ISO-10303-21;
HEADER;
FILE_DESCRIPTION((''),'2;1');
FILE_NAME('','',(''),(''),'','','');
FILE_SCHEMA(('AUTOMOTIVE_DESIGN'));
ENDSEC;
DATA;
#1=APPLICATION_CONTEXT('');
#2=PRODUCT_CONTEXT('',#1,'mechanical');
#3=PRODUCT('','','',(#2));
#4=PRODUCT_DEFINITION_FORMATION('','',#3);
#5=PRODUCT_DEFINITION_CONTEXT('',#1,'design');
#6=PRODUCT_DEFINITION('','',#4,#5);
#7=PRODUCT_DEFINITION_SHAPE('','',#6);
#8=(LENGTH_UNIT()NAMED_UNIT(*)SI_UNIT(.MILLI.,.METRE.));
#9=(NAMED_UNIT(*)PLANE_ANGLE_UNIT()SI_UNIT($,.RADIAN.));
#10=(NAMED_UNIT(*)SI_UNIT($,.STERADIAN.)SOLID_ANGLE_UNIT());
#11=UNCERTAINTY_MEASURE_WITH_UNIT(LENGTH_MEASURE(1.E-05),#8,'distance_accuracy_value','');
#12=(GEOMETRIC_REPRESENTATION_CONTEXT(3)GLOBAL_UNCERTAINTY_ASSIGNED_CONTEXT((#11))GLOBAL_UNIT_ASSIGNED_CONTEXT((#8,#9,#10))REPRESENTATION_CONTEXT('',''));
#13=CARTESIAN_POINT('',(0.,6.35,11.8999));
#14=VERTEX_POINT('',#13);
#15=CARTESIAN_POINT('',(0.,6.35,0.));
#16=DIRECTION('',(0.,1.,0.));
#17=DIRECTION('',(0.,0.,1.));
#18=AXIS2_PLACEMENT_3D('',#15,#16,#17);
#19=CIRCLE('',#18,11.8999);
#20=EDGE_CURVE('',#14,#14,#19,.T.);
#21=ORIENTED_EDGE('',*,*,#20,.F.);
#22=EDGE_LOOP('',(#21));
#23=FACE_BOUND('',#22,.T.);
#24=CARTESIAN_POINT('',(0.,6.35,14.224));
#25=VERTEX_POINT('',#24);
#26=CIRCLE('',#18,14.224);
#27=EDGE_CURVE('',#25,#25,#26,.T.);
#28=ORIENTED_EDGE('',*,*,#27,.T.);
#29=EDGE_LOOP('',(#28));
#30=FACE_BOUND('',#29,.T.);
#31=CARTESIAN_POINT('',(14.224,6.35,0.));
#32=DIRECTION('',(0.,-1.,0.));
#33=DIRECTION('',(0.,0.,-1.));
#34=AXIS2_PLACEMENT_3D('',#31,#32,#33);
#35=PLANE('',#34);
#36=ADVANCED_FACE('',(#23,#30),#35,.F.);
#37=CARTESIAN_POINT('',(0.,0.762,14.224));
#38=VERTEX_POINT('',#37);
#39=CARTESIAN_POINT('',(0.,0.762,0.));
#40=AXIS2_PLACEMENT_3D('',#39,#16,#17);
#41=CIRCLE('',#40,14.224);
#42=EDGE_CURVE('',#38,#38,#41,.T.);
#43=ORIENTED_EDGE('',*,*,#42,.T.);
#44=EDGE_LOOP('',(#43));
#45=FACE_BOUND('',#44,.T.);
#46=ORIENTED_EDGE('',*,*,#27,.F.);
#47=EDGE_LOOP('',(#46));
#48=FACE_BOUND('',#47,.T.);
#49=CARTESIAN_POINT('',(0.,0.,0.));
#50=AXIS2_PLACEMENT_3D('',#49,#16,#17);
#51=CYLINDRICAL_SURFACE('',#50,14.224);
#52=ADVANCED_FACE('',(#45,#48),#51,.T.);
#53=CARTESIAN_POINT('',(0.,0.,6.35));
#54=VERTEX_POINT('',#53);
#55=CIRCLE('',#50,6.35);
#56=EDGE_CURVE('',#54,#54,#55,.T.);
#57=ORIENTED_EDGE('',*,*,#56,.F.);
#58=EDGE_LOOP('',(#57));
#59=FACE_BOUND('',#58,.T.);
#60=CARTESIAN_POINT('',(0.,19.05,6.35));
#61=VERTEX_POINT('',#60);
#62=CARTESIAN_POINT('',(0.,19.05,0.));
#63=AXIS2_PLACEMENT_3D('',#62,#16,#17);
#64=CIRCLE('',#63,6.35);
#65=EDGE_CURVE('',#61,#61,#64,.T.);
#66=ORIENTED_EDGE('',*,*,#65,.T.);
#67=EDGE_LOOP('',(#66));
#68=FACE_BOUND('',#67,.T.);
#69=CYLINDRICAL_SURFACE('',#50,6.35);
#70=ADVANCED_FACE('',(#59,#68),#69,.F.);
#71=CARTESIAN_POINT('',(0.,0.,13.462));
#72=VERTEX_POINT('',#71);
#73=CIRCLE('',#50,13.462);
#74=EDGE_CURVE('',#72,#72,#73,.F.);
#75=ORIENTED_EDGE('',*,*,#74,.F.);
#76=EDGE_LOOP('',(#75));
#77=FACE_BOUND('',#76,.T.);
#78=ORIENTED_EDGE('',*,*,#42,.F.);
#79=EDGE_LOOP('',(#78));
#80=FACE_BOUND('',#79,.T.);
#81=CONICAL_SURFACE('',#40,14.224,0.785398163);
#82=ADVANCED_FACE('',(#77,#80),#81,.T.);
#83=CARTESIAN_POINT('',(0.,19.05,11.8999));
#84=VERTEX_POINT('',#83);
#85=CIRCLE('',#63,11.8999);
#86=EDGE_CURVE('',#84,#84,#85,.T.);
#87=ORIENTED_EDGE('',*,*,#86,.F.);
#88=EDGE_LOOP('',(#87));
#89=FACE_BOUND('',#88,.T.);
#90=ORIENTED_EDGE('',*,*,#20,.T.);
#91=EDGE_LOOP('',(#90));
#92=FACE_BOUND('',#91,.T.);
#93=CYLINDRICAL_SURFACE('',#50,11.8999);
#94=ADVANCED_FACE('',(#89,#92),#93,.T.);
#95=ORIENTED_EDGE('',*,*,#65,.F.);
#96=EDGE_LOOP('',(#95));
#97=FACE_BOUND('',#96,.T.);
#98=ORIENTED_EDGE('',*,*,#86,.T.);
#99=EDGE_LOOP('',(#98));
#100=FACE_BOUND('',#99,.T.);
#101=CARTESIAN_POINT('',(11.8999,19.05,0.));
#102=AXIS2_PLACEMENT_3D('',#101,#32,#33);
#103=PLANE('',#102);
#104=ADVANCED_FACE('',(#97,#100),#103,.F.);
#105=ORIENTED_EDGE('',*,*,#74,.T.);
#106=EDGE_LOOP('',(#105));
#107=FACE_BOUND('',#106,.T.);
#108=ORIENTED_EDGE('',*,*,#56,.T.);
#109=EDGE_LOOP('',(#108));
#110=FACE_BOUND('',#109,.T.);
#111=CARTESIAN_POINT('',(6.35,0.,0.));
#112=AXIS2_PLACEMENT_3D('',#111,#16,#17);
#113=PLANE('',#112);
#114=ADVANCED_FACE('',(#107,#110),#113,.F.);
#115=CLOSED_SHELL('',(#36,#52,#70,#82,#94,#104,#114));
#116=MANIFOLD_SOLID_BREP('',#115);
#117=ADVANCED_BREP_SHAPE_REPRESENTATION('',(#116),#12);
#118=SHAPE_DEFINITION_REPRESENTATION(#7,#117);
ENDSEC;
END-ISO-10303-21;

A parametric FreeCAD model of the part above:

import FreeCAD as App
import Part
import Sketcher

V = App.Vector
Q = App.Units.Quantity


def edges_at(feature, points):
    """Names of the edges that pass closest to the given points."""
    edges = feature.Shape.Edges
    near = lambda p: min(range(len(edges)), key=lambda i: edges[i].distToShape(Part.Vertex(*p))[0])
    return sorted({f"Edge{near(p) + 1}" for p in points})


def add_polygon(sketch, points):
    """Adds a closed chain of lines whose ends are joined by coincident constraints."""
    first, n = sketch.GeometryCount, len(points)
    for a, b in zip(points, points[1:] + points[:1]):
        sketch.addGeometry(Part.LineSegment(App.Vector(*a, 0), App.Vector(*b, 0)), False)
    for i in range(n):
        sketch.addConstraint(Sketcher.Constraint("Coincident", first + i, 2, first + (i + 1) % n, 1))

doc = App.newDocument("Part")
body = doc.addObject("PartDesign::Body", "Body")

sketch1 = body.newObject("Sketcher::SketchObject", "Sketch")
sketch1.AttachmentSupport = (doc.getObject("XY_Plane"), [""])
sketch1.MapMode = "FlatFace"
add_polygon(sketch1, [(14.2, 0), (14.2, 6.3), (11.9, 6.3), (11.9, 19.1), (6.3, 19.1), (6.3, 0)])
sketch1.addConstraint([
    Sketcher.Constraint("Vertical", 0),
    Sketcher.Constraint("Horizontal", 1),
    Sketcher.Constraint("Vertical", 2),
    Sketcher.Constraint("Horizontal", 3),
    Sketcher.Constraint("Vertical", 4),
    Sketcher.Constraint("Horizontal", 5),
    Sketcher.Constraint("PointOnObject", 4, 2, -1),
    Sketcher.Constraint("DistanceY", 2, 1, 2, 2, Q("0.5 in")),
    Sketcher.Constraint("DistanceX", 5, 1, 5, 2, Q("0.31 in")),
    Sketcher.Constraint("DistanceY", 0, 1, 0, 2, Q("0.25 in")),
    Sketcher.Constraint("DistanceX", -1, 1, 0, 2, Q("0.56 in")),
    Sketcher.Constraint("DistanceX", 1, 2, 1, 1, Q("0.0915 in")),
])
revolution = body.newObject("PartDesign::Revolution", "Revolution")
revolution.Profile = sketch1
revolution.ReferenceAxis = (sketch1, ["V_Axis"])
revolution.Angle = 360
doc.recompute()

chamfer = body.newObject("PartDesign::Chamfer", "Chamfer")
chamfer.Base = (revolution, edges_at(revolution, [(-14.224, 0, 0)]))
chamfer.Size = Q("0.03 in")

doc.recompute()
